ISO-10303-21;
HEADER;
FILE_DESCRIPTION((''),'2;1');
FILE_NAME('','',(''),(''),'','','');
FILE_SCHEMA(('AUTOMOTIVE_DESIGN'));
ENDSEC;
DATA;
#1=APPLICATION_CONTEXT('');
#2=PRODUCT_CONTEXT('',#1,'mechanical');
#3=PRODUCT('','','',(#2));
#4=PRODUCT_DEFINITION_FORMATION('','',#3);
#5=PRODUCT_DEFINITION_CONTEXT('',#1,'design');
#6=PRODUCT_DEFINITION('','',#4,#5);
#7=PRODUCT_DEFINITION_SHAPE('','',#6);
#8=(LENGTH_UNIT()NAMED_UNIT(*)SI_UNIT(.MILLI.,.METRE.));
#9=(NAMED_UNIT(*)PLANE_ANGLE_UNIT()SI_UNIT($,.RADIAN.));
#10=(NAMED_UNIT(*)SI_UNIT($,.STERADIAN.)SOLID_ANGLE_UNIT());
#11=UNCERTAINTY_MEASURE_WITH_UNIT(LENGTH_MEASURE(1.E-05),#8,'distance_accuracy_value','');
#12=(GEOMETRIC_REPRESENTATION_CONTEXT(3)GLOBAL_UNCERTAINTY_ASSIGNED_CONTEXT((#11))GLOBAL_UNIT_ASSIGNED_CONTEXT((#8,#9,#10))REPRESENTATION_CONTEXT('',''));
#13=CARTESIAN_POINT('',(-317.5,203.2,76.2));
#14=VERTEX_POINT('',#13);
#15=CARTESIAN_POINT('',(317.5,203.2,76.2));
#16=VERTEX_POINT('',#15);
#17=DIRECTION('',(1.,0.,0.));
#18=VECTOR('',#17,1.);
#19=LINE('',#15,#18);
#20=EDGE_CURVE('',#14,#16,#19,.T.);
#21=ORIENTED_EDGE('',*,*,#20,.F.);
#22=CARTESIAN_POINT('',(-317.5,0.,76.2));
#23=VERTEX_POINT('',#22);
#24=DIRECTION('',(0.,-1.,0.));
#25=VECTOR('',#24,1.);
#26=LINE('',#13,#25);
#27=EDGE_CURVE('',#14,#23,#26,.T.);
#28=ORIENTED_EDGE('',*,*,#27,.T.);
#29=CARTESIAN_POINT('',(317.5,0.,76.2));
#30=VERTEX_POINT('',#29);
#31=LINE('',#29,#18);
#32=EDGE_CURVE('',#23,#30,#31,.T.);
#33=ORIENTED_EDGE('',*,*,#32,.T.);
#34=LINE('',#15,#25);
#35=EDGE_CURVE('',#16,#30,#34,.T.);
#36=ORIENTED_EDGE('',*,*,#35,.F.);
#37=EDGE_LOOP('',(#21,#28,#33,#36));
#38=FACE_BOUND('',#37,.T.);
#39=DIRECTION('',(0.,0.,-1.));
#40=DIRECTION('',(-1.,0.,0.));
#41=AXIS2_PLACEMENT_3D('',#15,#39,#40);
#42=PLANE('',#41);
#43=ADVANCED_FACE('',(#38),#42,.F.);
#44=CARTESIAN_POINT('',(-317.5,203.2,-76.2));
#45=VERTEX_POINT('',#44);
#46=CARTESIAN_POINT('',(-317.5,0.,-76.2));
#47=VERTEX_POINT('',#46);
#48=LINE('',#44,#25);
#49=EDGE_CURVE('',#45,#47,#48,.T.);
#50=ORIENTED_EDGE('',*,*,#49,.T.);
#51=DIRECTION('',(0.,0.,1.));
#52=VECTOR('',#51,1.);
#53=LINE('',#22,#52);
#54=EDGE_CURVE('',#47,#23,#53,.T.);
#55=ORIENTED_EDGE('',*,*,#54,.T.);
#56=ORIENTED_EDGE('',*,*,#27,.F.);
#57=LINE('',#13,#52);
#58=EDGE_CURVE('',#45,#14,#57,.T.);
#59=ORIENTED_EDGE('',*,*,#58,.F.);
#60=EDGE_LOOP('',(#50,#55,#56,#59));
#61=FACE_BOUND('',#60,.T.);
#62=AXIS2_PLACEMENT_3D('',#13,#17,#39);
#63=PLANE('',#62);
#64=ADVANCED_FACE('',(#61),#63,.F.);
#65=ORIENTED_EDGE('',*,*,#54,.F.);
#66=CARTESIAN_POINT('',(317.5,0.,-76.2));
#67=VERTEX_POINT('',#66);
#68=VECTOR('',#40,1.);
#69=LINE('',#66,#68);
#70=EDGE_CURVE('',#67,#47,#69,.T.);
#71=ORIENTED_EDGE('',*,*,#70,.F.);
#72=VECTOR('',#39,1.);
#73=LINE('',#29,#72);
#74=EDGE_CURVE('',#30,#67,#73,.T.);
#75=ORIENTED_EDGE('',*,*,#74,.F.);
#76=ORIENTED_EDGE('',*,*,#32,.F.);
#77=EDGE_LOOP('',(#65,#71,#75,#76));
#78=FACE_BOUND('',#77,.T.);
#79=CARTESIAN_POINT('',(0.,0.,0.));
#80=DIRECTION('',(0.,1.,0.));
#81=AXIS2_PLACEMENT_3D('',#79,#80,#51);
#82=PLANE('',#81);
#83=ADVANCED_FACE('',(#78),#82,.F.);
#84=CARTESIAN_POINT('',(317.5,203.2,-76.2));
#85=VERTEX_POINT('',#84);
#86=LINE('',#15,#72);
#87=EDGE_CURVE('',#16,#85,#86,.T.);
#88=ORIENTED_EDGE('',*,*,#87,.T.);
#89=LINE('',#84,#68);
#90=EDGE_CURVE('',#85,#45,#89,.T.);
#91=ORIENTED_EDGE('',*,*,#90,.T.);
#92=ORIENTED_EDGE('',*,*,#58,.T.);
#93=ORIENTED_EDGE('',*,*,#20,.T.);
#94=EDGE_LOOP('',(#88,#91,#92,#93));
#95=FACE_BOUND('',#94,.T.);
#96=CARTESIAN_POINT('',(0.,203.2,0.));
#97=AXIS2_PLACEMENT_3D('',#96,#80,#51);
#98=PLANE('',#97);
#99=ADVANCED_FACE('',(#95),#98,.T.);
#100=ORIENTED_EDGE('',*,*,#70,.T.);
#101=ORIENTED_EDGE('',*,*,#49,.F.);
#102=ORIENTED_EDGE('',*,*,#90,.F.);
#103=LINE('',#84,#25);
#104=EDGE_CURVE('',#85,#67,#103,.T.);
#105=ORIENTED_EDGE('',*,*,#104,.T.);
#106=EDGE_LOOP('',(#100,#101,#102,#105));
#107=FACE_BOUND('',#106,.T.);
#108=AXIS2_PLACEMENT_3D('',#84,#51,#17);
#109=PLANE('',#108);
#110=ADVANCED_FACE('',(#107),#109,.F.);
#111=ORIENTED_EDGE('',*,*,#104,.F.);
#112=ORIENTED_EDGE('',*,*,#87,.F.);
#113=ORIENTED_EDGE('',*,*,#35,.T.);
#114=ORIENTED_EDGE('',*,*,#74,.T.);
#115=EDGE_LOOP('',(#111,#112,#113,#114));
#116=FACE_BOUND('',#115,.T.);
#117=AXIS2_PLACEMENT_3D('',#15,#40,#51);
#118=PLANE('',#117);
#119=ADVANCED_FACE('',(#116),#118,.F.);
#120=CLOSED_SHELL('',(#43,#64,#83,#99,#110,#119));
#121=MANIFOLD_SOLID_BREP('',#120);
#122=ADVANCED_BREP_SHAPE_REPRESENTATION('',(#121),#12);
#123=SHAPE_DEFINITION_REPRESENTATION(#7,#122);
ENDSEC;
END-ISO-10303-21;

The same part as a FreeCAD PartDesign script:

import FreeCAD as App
import Part
import Sketcher
Q = App.Units.Quantity


def add_polygon(sketch, points):
    """Adds a closed chain of lines whose ends are joined by coincident constraints."""
    first, n = sketch.GeometryCount, len(points)
    for a, b in zip(points, points[1:] + points[:1]):
        sketch.addGeometry(Part.LineSegment(App.Vector(*a, 0), App.Vector(*b, 0)), False)
    for i in range(n):
        sketch.addConstraint(Sketcher.Constraint("Coincident", first + i, 2, first + (i + 1) % n, 1))

doc = App.newDocument("Part")
body = doc.addObject("PartDesign::Body", "Body")

# Sketch on XZ plane
sketch1 = body.newObject("Sketcher::SketchObject", "Sketch")
sketch1.AttachmentSupport = (doc.getObject("XZ_Plane"), [""])
sketch1.MapMode = "FlatFace"
add_polygon(sketch1, [(-317.5, -76.2), (-317.5, 76.2), (317.5, 76.2), (317.5, -76.2)])  # lines 0-3
sketch1.addConstraint(Sketcher.Constraint("Vertical", 0))
sketch1.addConstraint(Sketcher.Constraint("Horizontal", 1))
sketch1.addConstraint(Sketcher.Constraint("Vertical", 2))
sketch1.addConstraint(Sketcher.Constraint("Horizontal", 3))
sketch1.addConstraint(Sketcher.Constraint("Symmetric", 0, 2, 2, 2, -1, 1))
sketch1.addConstraint(Sketcher.Constraint("DistanceX", 1, 1, 1, 2, Q("25 in")))
sketch1.addConstraint(Sketcher.Constraint("DistanceY", 0, 1, 0, 2, Q("6 in")))
pad1 = body.newObject("PartDesign::Pad", "Pad")
pad1.Profile = sketch1
pad1.Length = Q("8 in")
pad1.Reversed = True

doc.recompute()
